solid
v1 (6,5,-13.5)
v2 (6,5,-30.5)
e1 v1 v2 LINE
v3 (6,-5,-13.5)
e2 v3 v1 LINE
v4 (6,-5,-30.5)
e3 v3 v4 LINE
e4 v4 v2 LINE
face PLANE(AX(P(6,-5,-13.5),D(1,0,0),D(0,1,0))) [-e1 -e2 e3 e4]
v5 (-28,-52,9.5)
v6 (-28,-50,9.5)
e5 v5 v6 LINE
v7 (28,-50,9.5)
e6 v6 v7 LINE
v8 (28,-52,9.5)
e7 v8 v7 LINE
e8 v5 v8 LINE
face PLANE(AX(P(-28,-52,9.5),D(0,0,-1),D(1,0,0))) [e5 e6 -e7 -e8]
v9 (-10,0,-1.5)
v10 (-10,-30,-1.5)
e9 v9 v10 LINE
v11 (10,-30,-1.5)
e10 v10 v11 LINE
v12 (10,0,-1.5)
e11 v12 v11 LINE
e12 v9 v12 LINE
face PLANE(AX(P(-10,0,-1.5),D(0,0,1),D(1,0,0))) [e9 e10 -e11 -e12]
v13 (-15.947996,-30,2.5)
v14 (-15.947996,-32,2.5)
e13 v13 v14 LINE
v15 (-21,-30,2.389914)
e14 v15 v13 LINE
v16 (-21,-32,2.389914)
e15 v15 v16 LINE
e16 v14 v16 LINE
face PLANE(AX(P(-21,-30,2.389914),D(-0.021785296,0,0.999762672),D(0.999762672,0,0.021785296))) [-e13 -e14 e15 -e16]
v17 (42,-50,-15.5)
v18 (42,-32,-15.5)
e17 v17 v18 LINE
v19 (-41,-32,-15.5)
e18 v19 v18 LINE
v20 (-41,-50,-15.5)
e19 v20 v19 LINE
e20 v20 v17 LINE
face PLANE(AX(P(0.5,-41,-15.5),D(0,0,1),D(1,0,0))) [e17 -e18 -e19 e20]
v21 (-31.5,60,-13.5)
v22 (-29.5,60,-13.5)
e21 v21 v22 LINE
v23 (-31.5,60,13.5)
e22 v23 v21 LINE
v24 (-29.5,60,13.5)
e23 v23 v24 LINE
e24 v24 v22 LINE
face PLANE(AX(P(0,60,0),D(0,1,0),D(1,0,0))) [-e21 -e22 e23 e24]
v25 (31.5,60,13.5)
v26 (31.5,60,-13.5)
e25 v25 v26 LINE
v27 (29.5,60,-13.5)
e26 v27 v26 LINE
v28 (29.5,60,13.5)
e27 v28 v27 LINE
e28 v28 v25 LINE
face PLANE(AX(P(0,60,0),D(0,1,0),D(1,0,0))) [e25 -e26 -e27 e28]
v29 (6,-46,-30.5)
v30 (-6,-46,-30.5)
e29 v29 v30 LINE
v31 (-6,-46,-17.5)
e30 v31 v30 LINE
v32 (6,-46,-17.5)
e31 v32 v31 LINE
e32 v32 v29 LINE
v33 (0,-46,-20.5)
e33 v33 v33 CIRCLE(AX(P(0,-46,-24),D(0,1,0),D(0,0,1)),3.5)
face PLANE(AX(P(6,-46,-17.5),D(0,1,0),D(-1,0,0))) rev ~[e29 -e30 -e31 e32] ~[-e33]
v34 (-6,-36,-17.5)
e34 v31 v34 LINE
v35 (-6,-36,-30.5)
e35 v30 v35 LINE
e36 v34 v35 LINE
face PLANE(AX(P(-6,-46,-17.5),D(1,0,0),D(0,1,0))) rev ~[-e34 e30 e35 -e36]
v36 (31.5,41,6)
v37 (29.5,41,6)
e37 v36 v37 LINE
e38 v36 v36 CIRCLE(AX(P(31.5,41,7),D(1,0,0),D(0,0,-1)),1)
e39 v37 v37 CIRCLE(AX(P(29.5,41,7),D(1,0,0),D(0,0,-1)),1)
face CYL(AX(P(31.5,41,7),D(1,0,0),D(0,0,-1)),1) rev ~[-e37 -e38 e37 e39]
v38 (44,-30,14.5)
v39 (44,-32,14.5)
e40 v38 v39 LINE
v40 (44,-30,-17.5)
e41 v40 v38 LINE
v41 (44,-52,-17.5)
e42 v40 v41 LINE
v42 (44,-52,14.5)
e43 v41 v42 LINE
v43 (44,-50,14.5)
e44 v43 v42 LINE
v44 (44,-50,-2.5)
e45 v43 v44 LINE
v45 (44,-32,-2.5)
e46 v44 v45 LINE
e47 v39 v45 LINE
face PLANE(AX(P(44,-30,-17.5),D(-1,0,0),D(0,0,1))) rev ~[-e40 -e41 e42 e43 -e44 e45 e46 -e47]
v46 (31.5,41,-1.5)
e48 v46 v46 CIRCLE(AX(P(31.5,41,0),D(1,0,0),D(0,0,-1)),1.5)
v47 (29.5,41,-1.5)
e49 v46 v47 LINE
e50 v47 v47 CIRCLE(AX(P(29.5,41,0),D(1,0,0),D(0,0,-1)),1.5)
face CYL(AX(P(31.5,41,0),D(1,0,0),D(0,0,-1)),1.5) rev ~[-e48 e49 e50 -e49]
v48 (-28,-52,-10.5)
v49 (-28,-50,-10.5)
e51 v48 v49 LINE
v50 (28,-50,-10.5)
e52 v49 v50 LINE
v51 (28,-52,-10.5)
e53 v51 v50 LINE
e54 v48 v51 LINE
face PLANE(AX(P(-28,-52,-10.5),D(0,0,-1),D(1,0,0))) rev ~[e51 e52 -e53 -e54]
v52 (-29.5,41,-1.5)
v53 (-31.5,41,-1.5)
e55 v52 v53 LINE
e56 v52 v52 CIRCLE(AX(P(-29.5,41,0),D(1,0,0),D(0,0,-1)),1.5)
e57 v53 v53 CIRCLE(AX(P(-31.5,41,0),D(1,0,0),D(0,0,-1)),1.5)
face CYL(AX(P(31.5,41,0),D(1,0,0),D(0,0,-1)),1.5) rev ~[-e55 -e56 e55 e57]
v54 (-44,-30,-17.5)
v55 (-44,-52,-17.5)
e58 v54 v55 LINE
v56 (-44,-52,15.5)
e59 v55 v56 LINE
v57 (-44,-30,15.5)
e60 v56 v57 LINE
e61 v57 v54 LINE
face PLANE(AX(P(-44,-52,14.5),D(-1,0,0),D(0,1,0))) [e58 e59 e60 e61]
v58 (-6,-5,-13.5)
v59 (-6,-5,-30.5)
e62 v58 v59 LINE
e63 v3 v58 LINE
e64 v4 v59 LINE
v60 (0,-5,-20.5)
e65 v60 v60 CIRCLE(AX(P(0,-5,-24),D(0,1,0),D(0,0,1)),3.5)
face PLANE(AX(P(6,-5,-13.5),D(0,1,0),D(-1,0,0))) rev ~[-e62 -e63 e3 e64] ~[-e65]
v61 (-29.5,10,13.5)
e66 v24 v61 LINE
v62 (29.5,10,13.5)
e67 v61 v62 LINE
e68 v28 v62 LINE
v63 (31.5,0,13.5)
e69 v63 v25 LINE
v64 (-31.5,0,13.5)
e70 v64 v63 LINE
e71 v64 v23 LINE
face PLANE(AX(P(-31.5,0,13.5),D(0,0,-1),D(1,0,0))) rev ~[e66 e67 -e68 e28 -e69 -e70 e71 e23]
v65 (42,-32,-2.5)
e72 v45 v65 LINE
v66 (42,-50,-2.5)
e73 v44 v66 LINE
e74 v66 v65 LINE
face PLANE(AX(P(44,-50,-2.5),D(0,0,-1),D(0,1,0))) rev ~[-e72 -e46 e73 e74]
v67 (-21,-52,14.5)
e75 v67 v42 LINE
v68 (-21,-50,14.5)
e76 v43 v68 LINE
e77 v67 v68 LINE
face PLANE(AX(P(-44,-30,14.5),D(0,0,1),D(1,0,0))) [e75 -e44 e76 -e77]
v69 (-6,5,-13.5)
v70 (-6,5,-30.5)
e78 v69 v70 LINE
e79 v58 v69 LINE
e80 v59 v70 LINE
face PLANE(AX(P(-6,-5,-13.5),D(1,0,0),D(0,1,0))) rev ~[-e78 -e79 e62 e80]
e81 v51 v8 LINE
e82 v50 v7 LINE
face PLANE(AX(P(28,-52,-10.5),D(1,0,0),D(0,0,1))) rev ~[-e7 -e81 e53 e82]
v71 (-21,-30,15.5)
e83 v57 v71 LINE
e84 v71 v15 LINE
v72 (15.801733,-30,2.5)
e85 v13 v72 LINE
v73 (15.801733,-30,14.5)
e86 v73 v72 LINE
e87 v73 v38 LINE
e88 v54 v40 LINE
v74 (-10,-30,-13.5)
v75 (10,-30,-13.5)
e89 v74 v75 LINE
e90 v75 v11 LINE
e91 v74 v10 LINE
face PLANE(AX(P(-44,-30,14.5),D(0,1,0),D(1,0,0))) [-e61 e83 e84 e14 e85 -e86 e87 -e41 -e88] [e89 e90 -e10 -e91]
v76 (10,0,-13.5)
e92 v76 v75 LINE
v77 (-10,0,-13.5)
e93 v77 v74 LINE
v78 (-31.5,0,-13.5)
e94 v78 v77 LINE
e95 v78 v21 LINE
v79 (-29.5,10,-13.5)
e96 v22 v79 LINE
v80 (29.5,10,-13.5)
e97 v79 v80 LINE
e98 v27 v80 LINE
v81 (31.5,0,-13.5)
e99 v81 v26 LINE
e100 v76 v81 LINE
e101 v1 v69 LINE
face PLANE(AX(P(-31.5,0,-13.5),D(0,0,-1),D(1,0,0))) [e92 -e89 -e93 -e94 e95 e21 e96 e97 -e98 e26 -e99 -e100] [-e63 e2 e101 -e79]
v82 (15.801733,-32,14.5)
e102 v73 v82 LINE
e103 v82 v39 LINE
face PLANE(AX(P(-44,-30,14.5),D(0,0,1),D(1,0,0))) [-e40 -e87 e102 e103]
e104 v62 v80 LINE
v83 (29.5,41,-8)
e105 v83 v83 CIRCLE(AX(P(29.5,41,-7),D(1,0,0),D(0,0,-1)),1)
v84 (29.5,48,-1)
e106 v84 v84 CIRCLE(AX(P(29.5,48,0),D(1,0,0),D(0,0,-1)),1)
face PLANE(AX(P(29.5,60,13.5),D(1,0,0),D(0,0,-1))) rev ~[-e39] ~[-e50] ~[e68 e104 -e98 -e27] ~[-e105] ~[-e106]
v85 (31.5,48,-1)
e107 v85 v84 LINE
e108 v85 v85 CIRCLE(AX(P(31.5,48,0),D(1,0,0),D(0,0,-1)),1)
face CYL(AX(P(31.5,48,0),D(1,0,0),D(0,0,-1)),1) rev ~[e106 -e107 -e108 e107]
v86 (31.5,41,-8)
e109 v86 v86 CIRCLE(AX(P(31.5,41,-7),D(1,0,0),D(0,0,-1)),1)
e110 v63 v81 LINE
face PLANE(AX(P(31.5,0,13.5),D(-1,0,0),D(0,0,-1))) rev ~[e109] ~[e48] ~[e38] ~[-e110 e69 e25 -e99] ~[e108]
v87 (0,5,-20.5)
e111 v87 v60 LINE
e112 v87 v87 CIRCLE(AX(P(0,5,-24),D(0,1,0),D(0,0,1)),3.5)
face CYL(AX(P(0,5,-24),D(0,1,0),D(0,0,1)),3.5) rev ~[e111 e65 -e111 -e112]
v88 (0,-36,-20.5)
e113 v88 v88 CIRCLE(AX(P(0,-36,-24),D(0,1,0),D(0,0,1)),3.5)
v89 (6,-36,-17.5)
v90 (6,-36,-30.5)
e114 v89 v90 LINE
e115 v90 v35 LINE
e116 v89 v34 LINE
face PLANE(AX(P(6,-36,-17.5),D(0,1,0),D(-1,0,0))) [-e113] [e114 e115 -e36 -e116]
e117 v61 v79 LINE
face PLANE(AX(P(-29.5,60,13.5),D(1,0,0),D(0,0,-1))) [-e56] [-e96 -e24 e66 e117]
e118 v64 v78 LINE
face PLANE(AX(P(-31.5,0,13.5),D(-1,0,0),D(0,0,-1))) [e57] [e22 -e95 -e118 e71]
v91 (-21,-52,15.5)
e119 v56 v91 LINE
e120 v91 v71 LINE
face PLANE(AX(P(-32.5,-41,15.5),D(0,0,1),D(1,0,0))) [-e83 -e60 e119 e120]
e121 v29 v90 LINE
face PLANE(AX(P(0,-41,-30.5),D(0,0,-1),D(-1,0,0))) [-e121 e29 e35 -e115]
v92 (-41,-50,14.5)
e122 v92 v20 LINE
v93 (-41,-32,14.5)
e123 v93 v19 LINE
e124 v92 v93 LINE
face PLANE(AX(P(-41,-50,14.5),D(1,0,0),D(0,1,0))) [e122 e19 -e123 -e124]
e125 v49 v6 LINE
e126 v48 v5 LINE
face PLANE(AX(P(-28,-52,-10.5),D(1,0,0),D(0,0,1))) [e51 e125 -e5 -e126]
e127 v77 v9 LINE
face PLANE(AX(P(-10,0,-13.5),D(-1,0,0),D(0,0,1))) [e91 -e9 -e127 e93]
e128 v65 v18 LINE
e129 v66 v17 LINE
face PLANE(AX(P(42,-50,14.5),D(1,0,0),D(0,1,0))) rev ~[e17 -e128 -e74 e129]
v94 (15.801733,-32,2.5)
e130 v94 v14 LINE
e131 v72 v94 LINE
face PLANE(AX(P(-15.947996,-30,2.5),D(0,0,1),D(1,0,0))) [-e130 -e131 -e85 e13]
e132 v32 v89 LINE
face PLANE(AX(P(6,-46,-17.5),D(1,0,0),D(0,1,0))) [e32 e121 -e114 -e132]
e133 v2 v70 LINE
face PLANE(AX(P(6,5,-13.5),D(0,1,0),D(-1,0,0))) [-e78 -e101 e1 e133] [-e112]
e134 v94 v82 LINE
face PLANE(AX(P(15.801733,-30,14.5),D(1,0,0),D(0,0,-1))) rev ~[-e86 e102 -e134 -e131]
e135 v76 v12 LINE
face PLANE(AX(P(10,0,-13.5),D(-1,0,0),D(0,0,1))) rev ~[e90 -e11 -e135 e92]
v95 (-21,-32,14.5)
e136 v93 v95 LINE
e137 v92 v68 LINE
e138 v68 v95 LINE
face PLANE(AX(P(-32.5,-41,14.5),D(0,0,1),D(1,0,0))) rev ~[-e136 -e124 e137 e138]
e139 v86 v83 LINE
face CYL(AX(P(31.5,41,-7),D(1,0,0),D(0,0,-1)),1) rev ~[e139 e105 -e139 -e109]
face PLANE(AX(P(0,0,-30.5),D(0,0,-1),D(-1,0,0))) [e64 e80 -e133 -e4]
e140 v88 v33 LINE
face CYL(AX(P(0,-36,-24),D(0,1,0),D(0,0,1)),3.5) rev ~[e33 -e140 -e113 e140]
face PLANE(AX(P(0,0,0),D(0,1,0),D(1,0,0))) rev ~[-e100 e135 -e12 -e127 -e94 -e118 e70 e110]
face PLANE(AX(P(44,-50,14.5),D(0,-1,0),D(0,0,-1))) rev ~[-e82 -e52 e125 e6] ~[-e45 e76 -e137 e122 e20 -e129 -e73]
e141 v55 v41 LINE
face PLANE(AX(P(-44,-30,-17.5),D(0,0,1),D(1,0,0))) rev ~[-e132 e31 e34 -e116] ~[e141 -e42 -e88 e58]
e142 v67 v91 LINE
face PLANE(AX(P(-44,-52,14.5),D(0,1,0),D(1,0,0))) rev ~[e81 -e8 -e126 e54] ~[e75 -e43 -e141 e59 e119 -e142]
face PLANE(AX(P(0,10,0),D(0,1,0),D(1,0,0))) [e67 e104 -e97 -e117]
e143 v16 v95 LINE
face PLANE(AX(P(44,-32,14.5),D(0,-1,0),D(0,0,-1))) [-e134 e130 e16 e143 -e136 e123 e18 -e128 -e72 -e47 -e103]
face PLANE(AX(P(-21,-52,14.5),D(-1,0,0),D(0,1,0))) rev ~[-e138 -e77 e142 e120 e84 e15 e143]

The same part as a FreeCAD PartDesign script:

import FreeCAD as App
import Part
import Sketcher

V = App.Vector


def add_polygon(sketch, points):
    """Adds a closed chain of lines whose ends are joined by coincident constraints."""
    first, n = sketch.GeometryCount, len(points)
    for a, b in zip(points, points[1:] + points[:1]):
        sketch.addGeometry(Part.LineSegment(App.Vector(*a, 0), App.Vector(*b, 0)), False)
    for i in range(n):
        sketch.addConstraint(Sketcher.Constraint("Coincident", first + i, 2, first + (i + 1) % n, 1))

doc = App.newDocument("Part")
body = doc.addObject("PartDesign::Body", "Body")

sketch1 = doc.addObject("Sketcher::SketchObject", "Sketch")
body.addObject(sketch1)
sketch1.AttachmentSupport = (doc.XZ_Plane, [""])
sketch1.MapMode = "FlatFace"
add_polygon(sketch1, [(-32, -14), (-32, 14), (32, 14), (32, -14)])
sketch1.addConstraint([
    Sketcher.Constraint("Vertical", 0),
    Sketcher.Constraint("Horizontal", 1),
    Sketcher.Constraint("Vertical", 2),
    Sketcher.Constraint("Horizontal", 3),
    Sketcher.Constraint("Symmetric", 0, 2, 2, 2, -1, 1),
    Sketcher.Constraint("DistanceX", 1, 1, 1, 2, 63.0),
    Sketcher.Constraint("DistanceY", 0, 1, 0, 2, 27.0),
])
pad1 = doc.addObject("PartDesign::Pad", "Pad")
body.addObject(pad1)
pad1.Profile = sketch1
pad1.Length = 60
pad1.Reversed = True

sketch2 = doc.addObject("Sketcher::SketchObject", "Sketch001")
body.addObject(sketch2)
sketch2.AttachmentSupport = (doc.XZ_Plane, [""])
sketch2.MapMode = "FlatFace"
sketch2.AttachmentOffset = App.Placement(V(0, 0, -60), App.Rotation())
add_polygon(sketch2, [(-30, -14), (-30, 14), (30, 14), (30, -14)])
sketch2.addConstraint([
    Sketcher.Constraint("Vertical", 0),
    Sketcher.Constraint("Horizontal", 1),
    Sketcher.Constraint("Vertical", 2),
    Sketcher.Constraint("Horizontal", 3),
    Sketcher.Constraint("Symmetric", 0, 2, 2, 2, -1, 1),
    Sketcher.Constraint("DistanceX", 1, 1, 1, 2, 59.0),
    Sketcher.Constraint("DistanceY", 0, 1, 0, 2, 27.0),
])
pocket1 = doc.addObject("PartDesign::Pocket", "Pocket")
body.addObject(pocket1)
pocket1.Profile = sketch2
pocket1.Length = 50
pocket1.Reversed = True

sketch3 = doc.addObject("Sketcher::SketchObject", "Sketch002")
body.addObject(sketch3)
sketch3.AttachmentSupport = (doc.YZ_Plane, [""])
sketch3.MapMode = "FlatFace"
sketch3.AttachmentOffset = App.Placement(V(0, 0, 31.5), App.Rotation())
sketch3.addGeometry(Part.Circle(V(41, 0, 0), V(0, 0, 1), 1.5), False)
sketch3.addConstraint([
    Sketcher.Constraint("PointOnObject", 0, 3, -1),
    Sketcher.Constraint("Diameter", 0, 3.0),
    Sketcher.Constraint("DistanceX", -1, 1, 0, 3, 41.0),
])
pocket2 = doc.addObject("PartDesign::Pocket", "Pocket001")
body.addObject(pocket2)
pocket2.Profile = sketch3
pocket2.Length = 65

sketch4 = doc.addObject("Sketcher::SketchObject", "Sketch003")
body.addObject(sketch4)
sketch4.AttachmentSupport = (doc.XZ_Plane, [""])
sketch4.MapMode = "FlatFace"
add_polygon(sketch4, [(-10, -2), (-10, -14), (10, -14), (10, -2)])
sketch4.addConstraint([
    Sketcher.Constraint("Vertical", 0),
    Sketcher.Constraint("Horizontal", 1),
    Sketcher.Constraint("Vertical", 2),
    Sketcher.Constraint("Horizontal", 3),
    Sketcher.Constraint("DistanceX", 1, 1, 1, 2, 20.0),
    Sketcher.Constraint("DistanceY", 0, 2, 0, 1, 12.0),
    Sketcher.Constraint("DistanceX", 0, 2, -1, 1, 10.0),
    Sketcher.Constraint("DistanceY", 0, 2, -1, 1, 13.5),
])
pad2 = doc.addObject("PartDesign::Pad", "Pad001")
body.addObject(pad2)
pad2.Profile = sketch4
pad2.Length = 30

sketch5 = doc.addObject("Sketcher::SketchObject", "Sketch004")
body.addObject(sketch5)
sketch5.AttachmentSupport = (doc.XZ_Plane, [""])
sketch5.MapMode = "FlatFace"
sketch5.AttachmentOffset = App.Placement(V(0, 0, 30), App.Rotation())
add_polygon(sketch5, [(-44, 14), (-44, -18), (44, -18), (44, 14)])
sketch5.addConstraint([
    Sketcher.Constraint("Vertical", 0),
    Sketcher.Constraint("Horizontal", 1),
    Sketcher.Constraint("Vertical", 2),
    Sketcher.Constraint("Horizontal", 3),
    Sketcher.Constraint("DistanceX", 1, 1, 1, 2, 88.0),
    Sketcher.Constraint("DistanceY", 0, 2, 0, 1, 32.0),
    Sketcher.Constraint("DistanceX", 0, 2, -1, 1, 44.0),
    Sketcher.Constraint("DistanceY", 0, 2, -1, 1, 17.5),
])
pad3 = doc.addObject("PartDesign::Pad", "Pad002")
body.addObject(pad3)
pad3.Profile = sketch5
pad3.Length = 22

sketch6 = doc.addObject("Sketcher::SketchObject", "Sketch005")
body.addObject(sketch6)
sketch6.AttachmentSupport = (doc.XY_Plane, [""])
sketch6.MapMode = "FlatFace"
sketch6.AttachmentOffset = App.Placement(V(0, 0, 14.5), App.Rotation())
add_polygon(sketch6, [(-41, -32), (-41, -50), (42, -50), (42, -32)])
sketch6.addConstraint([
    Sketcher.Constraint("Vertical", 0),
    Sketcher.Constraint("Horizontal", 1),
    Sketcher.Constraint("Vertical", 2),
    Sketcher.Constraint("Horizontal", 3),
    Sketcher.Constraint("DistanceX", 1, 1, 1, 2, 83.0),
    Sketcher.Constraint("DistanceY", 0, 2, 0, 1, 18.0),
    Sketcher.Constraint("DistanceX", 0, 2, -1, 1, 41.0),
    Sketcher.Constraint("DistanceY", 0, 2, -1, 1, 50.0),
])
pocket3 = doc.addObject("PartDesign::Pocket", "Pocket002")
body.addObject(pocket3)
pocket3.Profile = sketch6
pocket3.Length = 30

sketch7 = doc.addObject("Sketcher::SketchObject", "Sketch006")
body.addObject(sketch7)
sketch7.AttachmentSupport = (doc.XZ_Plane, [""])
sketch7.MapMode = "FlatFace"
sketch7.AttachmentOffset = App.Placement(V(0, 0, 52), App.Rotation())
add_polygon(sketch7, [(-28, 10), (-28, -10), (28, -10), (28, 10)])
sketch7.addConstraint([
    Sketcher.Constraint("Vertical", 0),
    Sketcher.Constraint("Horizontal", 1),
    Sketcher.Constraint("Vertical", 2),
    Sketcher.Constraint("Horizontal", 3),
    Sketcher.Constraint("DistanceX", 1, 1, 1, 2, 56.0),
    Sketcher.Constraint("DistanceY", 0, 2, 0, 1, 20.0),
    Sketcher.Constraint("DistanceX", 0, 2, -1, 1, 28.0),
    Sketcher.Constraint("DistanceY", 0, 2, -1, 1, 10.5),
])
pocket4 = doc.addObject("PartDesign::Pocket", "Pocket003")
body.addObject(pocket4)
pocket4.Profile = sketch7
pocket4.Length = 3

sketch8 = doc.addObject("Sketcher::SketchObject", "Sketch007")
body.addObject(sketch8)
sketch8.AttachmentSupport = (doc.XY_Plane, [""])
sketch8.MapMode = "FlatFace"
sketch8.AttachmentOffset = App.Placement(V(0, 0, 14.5), App.Rotation())
add_polygon(sketch8, [(-44, -30), (-44, -52), (-21, -52), (-21, -30)])
sketch8.addConstraint([
    Sketcher.Constraint("Vertical", 0),
    Sketcher.Constraint("Horizontal", 1),
    Sketcher.Constraint("Vertical", 2),
    Sketcher.Constraint("Horizontal", 3),
    Sketcher.Constraint("DistanceX", 1, 1, 1, 2, 23.0),
    Sketcher.Constraint("DistanceY", 0, 2, 0, 1, 22.0),
    Sketcher.Constraint("DistanceX", 0, 2, -1, 1, 44.0),
    Sketcher.Constraint("DistanceY", 0, 2, -1, 1, 52.0),
])
pad4 = doc.addObject("PartDesign::Pad", "Pad003")
body.addObject(pad4)
pad4.Profile = sketch8
pad4.Length = 1

sketch9 = doc.addObject("Sketcher::SketchObject", "Sketch008")
body.addObject(sketch9)
sketch9.AttachmentSupport = (doc.YZ_Plane, [""])
sketch9.MapMode = "FlatFace"
sketch9.AttachmentOffset = App.Placement(V(0, 0, 44), App.Rotation())
add_polygon(sketch9, [(-32, 14), (-50, 14), (-50, -2), (-32, -2)])
sketch9.addConstraint([
    Sketcher.Constraint("Horizontal", 0),
    Sketcher.Constraint("Vertical", 1),
    Sketcher.Constraint("Horizontal", 2),
    Sketcher.Constraint("Vertical", 3),
    Sketcher.Constraint("DistanceX", 0, 2, 0, 1, 18.0),
    Sketcher.Constraint("DistanceY", 1, 2, 1, 1, 17.0),
    Sketcher.Constraint("DistanceX", 0, 2, -1, 1, 50.0),
    Sketcher.Constraint("DistanceY", -1, 1, 0, 2, 14.5),
])
pocket5 = doc.addObject("PartDesign::Pocket", "Pocket004")
body.addObject(pocket5)
pocket5.Profile = sketch9
pocket5.Length = 2.5

sketch10 = doc.addObject("Sketcher::SketchObject", "Sketch009")
body.addObject(sketch10)
sketch10.AttachmentSupport = (doc.XZ_Plane, [""])
sketch10.MapMode = "FlatFace"
sketch10.AttachmentOffset = App.Placement(V(0, 0, 30), App.Rotation())
add_polygon(sketch10, [(-16, 2), (-16, 14), (16, 14), (16, 2)])
sketch10.addConstraint([
    Sketcher.Constraint("Vertical", 0),
    Sketcher.Constraint("Horizontal", 1),
    Sketcher.Constraint("Vertical", 2),
    Sketcher.Constraint("Horizontal", 3),
    Sketcher.Constraint("DistanceY", 0, 1, 0, 2, 12.0),
    Sketcher.Constraint("DistanceY", -1, 1, 0, 2, 14.5),
    Sketcher.Constraint("DistanceX", 1, 1, 1, 2, 31.749728),
    Sketcher.Constraint("DistanceX", 0, 2, -1, 1, 15.947996),
])
pocket6 = doc.addObject("PartDesign::Pocket", "Pocket005")
body.addObject(pocket6)
pocket6.Profile = sketch10
pocket6.Length = 2.5
pocket6.Reversed = True

sketch11 = doc.addObject("Sketcher::SketchObject", "Sketch010")
body.addObject(sketch11)
sketch11.AttachmentSupport = (doc.XZ_Plane, [""])
sketch11.MapMode = "FlatFace"
sketch11.AttachmentOffset = App.Placement(V(0, 0, 30), App.Rotation())
add_polygon(sketch11, [(-21, 2), (-21, 14), (-16, 14), (-16, 2)])
sketch11.addConstraint([
    Sketcher.Constraint("Vertical", 0),
    Sketcher.Constraint("Horizontal", 1),
    Sketcher.Constraint("Vertical", 2),
    Sketcher.Constraint("DistanceY", 2, 2, 2, 1, 12.0),
    Sketcher.Constraint("DistanceX", 0, 2, -1, 1, 21.0),
    Sketcher.Constraint("DistanceY", -1, 1, 0, 2, 14.5),
    Sketcher.Constraint("DistanceX", 1, 1, 1, 2, 5.052004),
    Sketcher.Constraint("DistanceY", 0, 1, 0, 2, 12.110086),
])
pocket7 = doc.addObject("PartDesign::Pocket", "Pocket006")
body.addObject(pocket7)
pocket7.Profile = sketch11
pocket7.Length = 2.5
pocket7.Reversed = True

sketch12 = doc.addObject("Sketcher::SketchObject", "Sketch011")
body.addObject(sketch12)
sketch12.AttachmentSupport = (doc.XY_Plane, [""])
sketch12.MapMode = "FlatFace"
sketch12.AttachmentOffset = App.Placement(V(0, 0, -17.5), App.Rotation())
add_polygon(sketch12, [(6, -36), (6, -46), (-6, -46), (-6, -36)])
sketch12.addConstraint([
    Sketcher.Constraint("Vertical", 0),
    Sketcher.Constraint("Horizontal", 1),
    Sketcher.Constraint("Vertical", 2),
    Sketcher.Constraint("Horizontal", 3),
    Sketcher.Constraint("DistanceX", 1, 2, 1, 1, 12.0),
    Sketcher.Constraint("DistanceY", 0, 2, 0, 1, 10.0),
    Sketcher.Constraint("DistanceX", -1, 1, 0, 2, 6.0),
    Sketcher.Constraint("DistanceY", 0, 2, -1, 1, 46.0),
])
pad5 = doc.addObject("PartDesign::Pad", "Pad004")
body.addObject(pad5)
pad5.Profile = sketch12
pad5.Length = 13
pad5.Reversed = True

sketch13 = doc.addObject("Sketcher::SketchObject", "Sketch012")
body.addObject(sketch13)
sketch13.AttachmentSupport = (doc.XZ_Plane, [""])
sketch13.MapMode = "FlatFace"
sketch13.AttachmentOffset = App.Placement(V(0, 0, 36), App.Rotation())
sketch13.addGeometry(Part.Circle(V(0, -24, 0), V(0, 0, 1), 3.5), False)
sketch13.addConstraint([
    Sketcher.Constraint("PointOnObject", 0, 3, -2),
    Sketcher.Constraint("Diameter", 0, 7.0),
    Sketcher.Constraint("DistanceY", 0, 3, -1, 1, 24.0),
])
pocket8 = doc.addObject("PartDesign::Pocket", "Pocket007")
body.addObject(pocket8)
pocket8.Profile = sketch13
pocket8.Length = 13
pocket8.Reversed = True

sketch14 = doc.addObject("Sketcher::SketchObject", "Sketch013")
body.addObject(sketch14)
sketch14.AttachmentSupport = (doc.XY_Plane, [""])
sketch14.MapMode = "FlatFace"
sketch14.AttachmentOffset = App.Placement(V(0, 0, -13.5), App.Rotation())
add_polygon(sketch14, [(6, 5), (6, -5), (-6, -5), (-6, 5)])
sketch14.addConstraint([
    Sketcher.Constraint("Vertical", 0),
    Sketcher.Constraint("Horizontal", 1),
    Sketcher.Constraint("Vertical", 2),
    Sketcher.Constraint("Horizontal", 3),
    Sketcher.Constraint("Symmetric", 0, 2, 2, 2, -1, 1),
    Sketcher.Constraint("DistanceX", 1, 2, 1, 1, 12.0),
    Sketcher.Constraint("DistanceY", 0, 2, 0, 1, 10.0),
])
pad6 = doc.addObject("PartDesign::Pad", "Pad005")
body.addObject(pad6)
pad6.Profile = sketch14
pad6.Length = 17
pad6.Reversed = True

sketch15 = doc.addObject("Sketcher::SketchObject", "Sketch014")
body.addObject(sketch15)
sketch15.AttachmentSupport = (doc.XZ_Plane, [""])
sketch15.MapMode = "FlatFace"
sketch15.AttachmentOffset = App.Placement(V(0, 0, -5), App.Rotation())
sketch15.addGeometry(Part.Circle(V(0, -24, 0), V(0, 0, 1), 3.5), False)
sketch15.addConstraint([
    Sketcher.Constraint("PointOnObject", 0, 3, -2),
    Sketcher.Constraint("Diameter", 0, 7.0),
    Sketcher.Constraint("DistanceY", 0, 3, -1, 1, 24.0),
])
pocket9 = doc.addObject("PartDesign::Pocket", "Pocket008")
body.addObject(pocket9)
pocket9.Profile = sketch15
pocket9.Length = 17
pocket9.Reversed = True

sketch16 = doc.addObject("Sketcher::SketchObject", "Sketch015")
body.addObject(sketch16)
sketch16.AttachmentSupport = (doc.YZ_Plane, [""])
sketch16.MapMode = "FlatFace"
sketch16.AttachmentOffset = App.Placement(V(0, 0, 31.5), App.Rotation())
sketch16.addGeometry([
    Part.Circle(V(48, 0, 0), V(0, 0, 1), 1),
    Part.Circle(V(41, -7, 0), V(0, 0, 1), 1),
    Part.Circle(V(41, 7, 0), V(0, 0, 1), 1),
], False)
sketch16.addConstraint([
    Sketcher.Constraint("Equal", 0, 1),
    Sketcher.Constraint("Equal", 1, 2),
    Sketcher.Constraint("Symmetric", 1, 3, 2, 3, -1),
    Sketcher.Constraint("PointOnObject", 0, 3, -1),
    Sketcher.Constraint("Diameter", 0, 2.0),
    Sketcher.Constraint("DistanceX", -1, 1, 0, 3, 48.0),
    Sketcher.Constraint("DistanceX", -1, 1, 1, 3, 41.0),
    Sketcher.Constraint("DistanceY", 1, 3, -1, 1, 7.0),
])
pocket10 = doc.addObject("PartDesign::Pocket", "Pocket009")
body.addObject(pocket10)
pocket10.Profile = sketch16
pocket10.Length = 10

doc.recompute()
